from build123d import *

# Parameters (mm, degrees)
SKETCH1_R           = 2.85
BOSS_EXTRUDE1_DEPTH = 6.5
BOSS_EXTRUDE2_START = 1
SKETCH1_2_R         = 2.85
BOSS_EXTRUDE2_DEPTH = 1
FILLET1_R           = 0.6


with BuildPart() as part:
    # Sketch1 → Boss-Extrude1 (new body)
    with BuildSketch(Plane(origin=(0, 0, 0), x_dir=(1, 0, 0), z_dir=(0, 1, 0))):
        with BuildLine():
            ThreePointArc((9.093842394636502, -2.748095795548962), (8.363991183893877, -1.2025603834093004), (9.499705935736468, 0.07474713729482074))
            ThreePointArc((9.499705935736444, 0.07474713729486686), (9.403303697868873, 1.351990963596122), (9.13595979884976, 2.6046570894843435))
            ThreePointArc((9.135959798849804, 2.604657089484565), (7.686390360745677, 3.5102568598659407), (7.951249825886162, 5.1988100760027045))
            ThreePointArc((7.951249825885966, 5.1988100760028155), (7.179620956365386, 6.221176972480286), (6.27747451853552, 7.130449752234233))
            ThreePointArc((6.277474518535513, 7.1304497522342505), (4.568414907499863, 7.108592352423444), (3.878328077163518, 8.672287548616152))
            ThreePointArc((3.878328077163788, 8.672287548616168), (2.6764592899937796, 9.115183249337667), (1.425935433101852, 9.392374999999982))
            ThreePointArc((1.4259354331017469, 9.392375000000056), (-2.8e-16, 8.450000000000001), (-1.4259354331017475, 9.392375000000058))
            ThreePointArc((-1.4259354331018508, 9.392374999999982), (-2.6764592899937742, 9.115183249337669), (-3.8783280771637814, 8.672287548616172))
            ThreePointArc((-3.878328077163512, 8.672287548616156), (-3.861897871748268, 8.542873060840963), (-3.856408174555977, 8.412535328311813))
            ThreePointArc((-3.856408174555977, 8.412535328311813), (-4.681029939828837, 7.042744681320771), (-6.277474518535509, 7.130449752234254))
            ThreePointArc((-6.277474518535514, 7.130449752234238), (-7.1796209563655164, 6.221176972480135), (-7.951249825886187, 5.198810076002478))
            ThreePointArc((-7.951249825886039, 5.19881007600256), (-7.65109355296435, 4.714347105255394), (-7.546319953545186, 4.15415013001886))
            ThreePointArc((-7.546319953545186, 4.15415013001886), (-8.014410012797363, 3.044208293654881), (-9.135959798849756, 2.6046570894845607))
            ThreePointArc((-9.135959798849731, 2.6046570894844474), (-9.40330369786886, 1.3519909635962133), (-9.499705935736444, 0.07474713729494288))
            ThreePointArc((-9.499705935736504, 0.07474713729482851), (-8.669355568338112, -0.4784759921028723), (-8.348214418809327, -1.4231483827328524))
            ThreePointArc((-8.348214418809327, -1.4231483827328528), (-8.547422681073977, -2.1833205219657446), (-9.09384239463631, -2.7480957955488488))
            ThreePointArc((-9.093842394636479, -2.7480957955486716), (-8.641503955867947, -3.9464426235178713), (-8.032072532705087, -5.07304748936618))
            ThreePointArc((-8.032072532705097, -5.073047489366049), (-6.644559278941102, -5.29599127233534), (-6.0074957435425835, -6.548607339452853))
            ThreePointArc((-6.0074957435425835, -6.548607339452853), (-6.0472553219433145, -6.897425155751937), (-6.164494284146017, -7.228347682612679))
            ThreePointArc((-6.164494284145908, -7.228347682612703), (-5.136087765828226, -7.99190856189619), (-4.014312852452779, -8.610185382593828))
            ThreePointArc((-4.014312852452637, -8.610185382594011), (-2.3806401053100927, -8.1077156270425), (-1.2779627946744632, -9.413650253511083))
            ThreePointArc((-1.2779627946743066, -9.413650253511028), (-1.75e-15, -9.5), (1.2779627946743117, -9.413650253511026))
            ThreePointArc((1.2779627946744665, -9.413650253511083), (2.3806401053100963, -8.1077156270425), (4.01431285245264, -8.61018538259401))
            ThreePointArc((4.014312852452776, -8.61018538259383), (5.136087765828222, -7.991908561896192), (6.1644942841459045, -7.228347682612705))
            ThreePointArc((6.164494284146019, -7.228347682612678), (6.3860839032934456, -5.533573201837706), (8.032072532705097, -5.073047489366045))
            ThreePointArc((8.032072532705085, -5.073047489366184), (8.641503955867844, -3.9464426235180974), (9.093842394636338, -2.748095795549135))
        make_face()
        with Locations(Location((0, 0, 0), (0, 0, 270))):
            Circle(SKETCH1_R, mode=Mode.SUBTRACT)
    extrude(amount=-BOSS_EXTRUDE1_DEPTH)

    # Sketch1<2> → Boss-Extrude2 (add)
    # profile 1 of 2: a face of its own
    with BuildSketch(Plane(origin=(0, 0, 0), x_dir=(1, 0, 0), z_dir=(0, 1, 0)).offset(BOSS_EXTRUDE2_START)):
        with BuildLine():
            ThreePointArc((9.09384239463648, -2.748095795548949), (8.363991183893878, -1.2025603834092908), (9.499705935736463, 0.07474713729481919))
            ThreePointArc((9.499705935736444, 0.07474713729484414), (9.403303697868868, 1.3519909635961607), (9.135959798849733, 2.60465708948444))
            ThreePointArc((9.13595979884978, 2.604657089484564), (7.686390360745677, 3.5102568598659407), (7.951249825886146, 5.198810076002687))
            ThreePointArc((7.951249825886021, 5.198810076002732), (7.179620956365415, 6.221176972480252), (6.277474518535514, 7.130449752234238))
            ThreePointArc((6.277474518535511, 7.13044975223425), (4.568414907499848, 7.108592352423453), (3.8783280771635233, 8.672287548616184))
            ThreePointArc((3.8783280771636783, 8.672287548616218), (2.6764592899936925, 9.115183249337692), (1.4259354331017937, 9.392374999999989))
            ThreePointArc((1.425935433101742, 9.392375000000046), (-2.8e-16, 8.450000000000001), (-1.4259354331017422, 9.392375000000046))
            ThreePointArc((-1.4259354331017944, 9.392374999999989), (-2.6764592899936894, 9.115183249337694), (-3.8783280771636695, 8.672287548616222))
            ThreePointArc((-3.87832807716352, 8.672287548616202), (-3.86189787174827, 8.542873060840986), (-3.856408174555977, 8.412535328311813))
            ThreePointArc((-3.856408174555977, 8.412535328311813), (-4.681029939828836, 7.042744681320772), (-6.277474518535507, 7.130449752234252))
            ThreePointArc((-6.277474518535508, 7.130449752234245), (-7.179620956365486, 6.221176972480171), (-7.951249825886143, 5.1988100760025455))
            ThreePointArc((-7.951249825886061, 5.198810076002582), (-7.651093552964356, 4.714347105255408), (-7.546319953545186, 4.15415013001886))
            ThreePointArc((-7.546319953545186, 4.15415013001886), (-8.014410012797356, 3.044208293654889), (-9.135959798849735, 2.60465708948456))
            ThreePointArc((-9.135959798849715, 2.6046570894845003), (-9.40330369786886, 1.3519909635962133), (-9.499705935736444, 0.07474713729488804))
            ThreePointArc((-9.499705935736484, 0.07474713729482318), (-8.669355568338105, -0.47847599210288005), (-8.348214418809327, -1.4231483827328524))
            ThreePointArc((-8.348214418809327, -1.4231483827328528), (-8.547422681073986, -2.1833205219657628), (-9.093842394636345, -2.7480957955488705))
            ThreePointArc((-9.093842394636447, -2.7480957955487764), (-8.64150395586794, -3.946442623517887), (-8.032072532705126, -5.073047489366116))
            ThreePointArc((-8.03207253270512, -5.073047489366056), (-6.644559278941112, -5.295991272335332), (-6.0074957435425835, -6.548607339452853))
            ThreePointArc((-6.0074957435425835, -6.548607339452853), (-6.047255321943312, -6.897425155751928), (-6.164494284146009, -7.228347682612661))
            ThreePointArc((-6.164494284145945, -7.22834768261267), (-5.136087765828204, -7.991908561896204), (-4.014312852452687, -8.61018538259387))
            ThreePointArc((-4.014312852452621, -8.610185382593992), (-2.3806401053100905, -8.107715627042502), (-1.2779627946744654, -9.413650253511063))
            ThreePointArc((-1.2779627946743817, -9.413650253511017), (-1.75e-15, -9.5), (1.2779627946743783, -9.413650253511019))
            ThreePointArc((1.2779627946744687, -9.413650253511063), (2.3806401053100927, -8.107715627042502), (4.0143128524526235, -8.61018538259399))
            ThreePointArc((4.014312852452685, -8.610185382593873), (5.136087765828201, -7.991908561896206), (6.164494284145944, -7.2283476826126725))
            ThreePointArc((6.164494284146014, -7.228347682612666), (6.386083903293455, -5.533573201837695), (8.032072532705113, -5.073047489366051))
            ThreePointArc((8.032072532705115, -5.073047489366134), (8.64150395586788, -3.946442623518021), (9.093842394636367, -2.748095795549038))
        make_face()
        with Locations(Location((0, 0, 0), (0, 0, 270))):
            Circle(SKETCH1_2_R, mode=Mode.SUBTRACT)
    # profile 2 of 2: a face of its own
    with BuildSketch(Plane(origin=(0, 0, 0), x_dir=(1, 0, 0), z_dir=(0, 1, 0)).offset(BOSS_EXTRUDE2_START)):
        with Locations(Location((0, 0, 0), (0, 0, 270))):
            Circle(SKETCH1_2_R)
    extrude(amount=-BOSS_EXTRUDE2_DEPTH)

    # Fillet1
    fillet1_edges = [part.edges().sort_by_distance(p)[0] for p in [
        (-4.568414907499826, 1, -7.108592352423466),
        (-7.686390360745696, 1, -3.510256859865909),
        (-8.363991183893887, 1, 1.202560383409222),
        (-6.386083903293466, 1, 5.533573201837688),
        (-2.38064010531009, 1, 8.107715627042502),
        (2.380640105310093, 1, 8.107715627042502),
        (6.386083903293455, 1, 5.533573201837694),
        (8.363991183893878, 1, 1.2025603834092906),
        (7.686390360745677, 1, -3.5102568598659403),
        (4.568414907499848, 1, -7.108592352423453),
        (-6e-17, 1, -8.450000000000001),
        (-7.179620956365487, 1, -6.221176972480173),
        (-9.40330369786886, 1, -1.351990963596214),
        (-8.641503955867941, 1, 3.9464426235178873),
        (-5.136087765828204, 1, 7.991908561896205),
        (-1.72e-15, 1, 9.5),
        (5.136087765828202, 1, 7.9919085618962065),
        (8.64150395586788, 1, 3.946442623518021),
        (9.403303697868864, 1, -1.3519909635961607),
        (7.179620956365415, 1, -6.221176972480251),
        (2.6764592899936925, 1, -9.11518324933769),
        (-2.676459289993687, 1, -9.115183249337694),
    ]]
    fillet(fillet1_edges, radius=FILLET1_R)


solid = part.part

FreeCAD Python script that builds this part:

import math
import FreeCAD as App
import Part
import Sketcher
Q = App.Units.Quantity


def edges_at(feature, points):
    """Names of the edges that pass closest to the given points."""
    edges = feature.Shape.Edges
    near = lambda p: min(range(len(edges)), key=lambda i: edges[i].distToShape(Part.Vertex(*p))[0])
    return sorted({f"Edge{near(p) + 1}" for p in points})

doc = App.newDocument("Part")
body = doc.addObject("PartDesign::Body", "Body")

# Sketch on XZ plane
sketch1 = doc.addObject("Sketcher::SketchObject", "Sketch")
body.addObject(sketch1)
sketch1.AttachmentSupport = (doc.XZ_Plane, [""])
sketch1.MapMode = "FlatFace"
sketch1.addGeometry([
    Part.ArcOfCircle(Part.Circle(App.Vector(9.9, 1.4, 0), App.Vector(0, 0, 1), 1.6), math.radians(121), math.radians(255)),  # 0
    Part.ArcOfCircle(Part.Circle(App.Vector(0, 0, 0), App.Vector(0, 0, 1), 9.5), math.radians(-15.91), math.radians(-0.45)),  # 1
    Part.ArcOfCircle(Part.Circle(App.Vector(9.1, -4.2, 0), App.Vector(0, 0, 1), 1.6), math.radians(89), math.radians(222)),  # 2
    Part.ArcOfCircle(Part.Circle(App.Vector(0, 0, 0), App.Vector(0, 0, 1), 9.5), math.radians(-48.64), math.radians(-33.18)),  # 3
    Part.ArcOfCircle(Part.Circle(App.Vector(5.4, -8.4, 0), App.Vector(0, 0, 1), 1.6), math.radians(56), math.radians(190)),  # 4
    Part.ArcOfCircle(Part.Circle(App.Vector(0, 0, 0), App.Vector(0, 0, 1), 9.5), math.radians(-81.37), math.radians(-65.91)),  # 5
    Part.ArcOfCircle(Part.Circle(App.Vector(0, -10, 0), App.Vector(0, 0, 1), 1.6), math.radians(23), math.radians(157)),  # 6
    Part.ArcOfCircle(Part.Circle(App.Vector(0, 0, 0), App.Vector(0, 0, 1), 9.5), math.radians(-114.09), math.radians(-98.63)),  # 7
    Part.ArcOfCircle(Part.Circle(App.Vector(-5.4, -8.4, 0), App.Vector(0, 0, 1), 1.6), math.radians(-10), math.radians(124)),  # 8
    Part.ArcOfCircle(Part.Circle(App.Vector(0, 0, 0), App.Vector(0, 0, 1), 9.5), math.radians(-146.82), math.radians(-131.36)),  # 9
    Part.ArcOfCircle(Part.Circle(App.Vector(-9.1, -4.2, 0), App.Vector(0, 0, 1), 1.6), math.radians(-42), math.radians(91)),  # 10
    Part.ArcOfCircle(Part.Circle(App.Vector(0, 0, 0), App.Vector(0, 0, 1), 9.5), math.radians(-179.55), math.radians(-164.09)),  # 11
    Part.ArcOfCircle(Part.Circle(App.Vector(-9.9, 1.4, 0), App.Vector(0, 0, 1), 1.6), math.radians(-75), math.radians(59)),  # 12
    Part.ArcOfCircle(Part.Circle(App.Vector(0, 0, 0), App.Vector(0, 0, 1), 9.5), math.radians(147.72), math.radians(163.19)),  # 13
    Part.ArcOfCircle(Part.Circle(App.Vector(-7.6, 6.5, 0), App.Vector(0, 0, 1), 1.6), math.radians(-108), math.radians(26)),  # 14
    Part.ArcOfCircle(Part.Circle(App.Vector(0, 0, 0), App.Vector(0, 0, 1), 9.5), math.radians(115), math.radians(130.46)),  # 15
    Part.ArcOfCircle(Part.Circle(App.Vector(-2.8, 9.6, 0), App.Vector(0, 0, 1), 1.6), math.radians(-141), math.radians(-7)),  # 16
    Part.ArcOfCircle(Part.Circle(App.Vector(0, 0, 0), App.Vector(0, 0, 1), 9.5), math.radians(82.27), math.radians(97.73)),  # 17
    Part.ArcOfCircle(Part.Circle(App.Vector(2.8, 9.6, 0), App.Vector(0, 0, 1), 1.6), math.radians(-173), math.radians(-39)),  # 18
    Part.ArcOfCircle(Part.Circle(App.Vector(0, 0, 0), App.Vector(0, 0, 1), 9.5), math.radians(49.54), math.radians(65)),  # 19
    Part.ArcOfCircle(Part.Circle(App.Vector(7.6, 6.5, 0), App.Vector(0, 0, 1), 1.6), math.radians(154), math.radians(288)),  # 20
    Part.ArcOfCircle(Part.Circle(App.Vector(0, 0, 0), App.Vector(0, 0, 1), 9.5), math.radians(16.81), math.radians(32.28)),  # 21
    Part.Circle(App.Vector(0, 0, 0), App.Vector(0, 0, 1), 2.9),  # 22
], False)
sketch1.addConstraint([
    Sketcher.Constraint("Coincident", 0, 2, 1, 2),
    Sketcher.Constraint("Coincident", 1, 1, 2, 1),
    Sketcher.Constraint("Coincident", 2, 2, 3, 2),
    Sketcher.Constraint("Coincident", 3, 1, 4, 1),
    Sketcher.Constraint("Coincident", 4, 2, 5, 2),
    Sketcher.Constraint("Coincident", 5, 1, 6, 1),
    Sketcher.Constraint("Coincident", 6, 2, 7, 2),
    Sketcher.Constraint("Coincident", 7, 1, 8, 1),
    Sketcher.Constraint("Coincident", 8, 2, 9, 2),
    Sketcher.Constraint("Coincident", 9, 1, 10, 1),
    Sketcher.Constraint("Coincident", 10, 2, 11, 2),
    Sketcher.Constraint("Coincident", 11, 1, 12, 1),
    Sketcher.Constraint("Coincident", 12, 2, 13, 2),
    Sketcher.Constraint("Coincident", 13, 1, 14, 1),
    Sketcher.Constraint("Coincident", 14, 2, 15, 2),
    Sketcher.Constraint("Coincident", 15, 1, 16, 1),
    Sketcher.Constraint("Coincident", 16, 2, 17, 2),
    Sketcher.Constraint("Coincident", 17, 1, 18, 1),
    Sketcher.Constraint("Coincident", 18, 2, 19, 2),
    Sketcher.Constraint("Coincident", 19, 1, 20, 1),
    Sketcher.Constraint("Coincident", 20, 2, 21, 2),
    Sketcher.Constraint("Coincident", 21, 1, 0, 1),
    Sketcher.Constraint("Coincident", 1, 3, -1, 1),
    Sketcher.Constraint("Coincident", 3, 3, -1, 1),
    Sketcher.Constraint("Coincident", 5, 3, -1, 1),
    Sketcher.Constraint("Coincident", 7, 3, -1, 1),
    Sketcher.Constraint("Coincident", 9, 3, -1, 1),
    Sketcher.Constraint("Coincident", 11, 3, -1, 1),
    Sketcher.Constraint("Coincident", 13, 3, -1, 1),
    Sketcher.Constraint("Coincident", 15, 3, -1, 1),
    Sketcher.Constraint("Coincident", 17, 3, -1, 1),
    Sketcher.Constraint("Coincident", 19, 3, -1, 1),
    Sketcher.Constraint("Coincident", 21, 3, -1, 1),
    Sketcher.Constraint("Coincident", 22, 3, -1, 1),
    Sketcher.Constraint("Equal", 0, 2),
    Sketcher.Constraint("Equal", 1, 3),
    Sketcher.Constraint("Equal", 2, 4),
    Sketcher.Constraint("Equal", 3, 5),
    Sketcher.Constraint("Equal", 4, 6),
    Sketcher.Constraint("Equal", 5, 7),
    Sketcher.Constraint("Equal", 6, 8),
    Sketcher.Constraint("Equal", 7, 9),
    Sketcher.Constraint("Equal", 8, 10),
    Sketcher.Constraint("Equal", 9, 11),
    Sketcher.Constraint("Equal", 10, 12),
    Sketcher.Constraint("Equal", 11, 13),
    Sketcher.Constraint("Equal", 12, 14),
    Sketcher.Constraint("Equal", 13, 15),
    Sketcher.Constraint("Equal", 14, 16),
    Sketcher.Constraint("Equal", 15, 17),
    Sketcher.Constraint("Equal", 16, 18),
    Sketcher.Constraint("Equal", 17, 19),
    Sketcher.Constraint("Equal", 18, 20),
    Sketcher.Constraint("Equal", 19, 21),
    Sketcher.Constraint("Symmetric", 4, 3, 8, 3, -2),
    Sketcher.Constraint("Symmetric", 2, 3, 10, 3, -2),
    Sketcher.Constraint("Symmetric", 0, 3, 12, 3, -2),
    Sketcher.Constraint("Symmetric", 16, 3, 18, 3, -2),
    Sketcher.Constraint("Symmetric", 14, 3, 20, 3, -2),
    Sketcher.Constraint("PointOnObject", 6, 3, -2),
    Sketcher.Constraint("Diameter", 22, Q("5.7 mm")),
    Sketcher.Constraint("Radius", 1, Q("9.5 mm")),
    Sketcher.Constraint("Radius", 0, Q("1.55 mm")),
    Sketcher.Constraint("DistanceY", 6, 3, -1, 1, Q("10 mm")),
    Sketcher.Constraint("DistanceX", 14, 3, 14, 2, Q("1.393001 mm")),
    Sketcher.Constraint("DistanceY", 2, 3, 0, 3, Q("5.577299 mm")),
    Sketcher.Constraint("DistanceY", 3, 1, 2, 3, Q("2.9763 mm")),
    Sketcher.Constraint("DistanceY", 12, 3, 13, 1, Q("3.649899 mm")),
    Sketcher.Constraint("DistanceY", 13, 1, 14, 2, Q("2.1553 mm")),
    Sketcher.Constraint("DistanceX", -1, 1, 2, 3, Q("9.09632 mm")),
    Sketcher.Constraint("DistanceX", -1, 1, 4, 3, Q("5.406408 mm")),
    Sketcher.Constraint("DistanceY", -1, 1, 16, 3, Q("9.59493 mm")),
    Sketcher.Constraint("DistanceY", -1, 1, 16, 2, Q("9.41365 mm")),
    Sketcher.Constraint("DistanceX", 12, 3, 14, 3, Q("2.340719 mm")),
])
pad1 = doc.addObject("PartDesign::Pad", "Pad")
body.addObject(pad1)
pad1.Profile = sketch1
pad1.Length = 6.5

# Sketch on XZ plane
sketch2 = doc.addObject("Sketcher::SketchObject", "Sketch001")
body.addObject(sketch2)
sketch2.AttachmentSupport = (doc.XZ_Plane, [""])
sketch2.MapMode = "FlatFace"
sketch2.AttachmentOffset = App.Placement(App.Vector(0, 0, -1), App.Rotation())
sketch2.addGeometry([
    Part.ArcOfCircle(Part.Circle(App.Vector(9.9, 1.4, 0), App.Vector(0, 0, 1), 1.6), math.radians(121), math.radians(255)),  # 0
    Part.ArcOfCircle(Part.Circle(App.Vector(0, 0, 0), App.Vector(0, 0, 1), 9.5), math.radians(-15.91), math.radians(-0.45)),  # 1
    Part.ArcOfCircle(Part.Circle(App.Vector(9.1, -4.2, 0), App.Vector(0, 0, 1), 1.6), math.radians(89), math.radians(222)),  # 2
    Part.ArcOfCircle(Part.Circle(App.Vector(0, 0, 0), App.Vector(0, 0, 1), 9.5), math.radians(-48.64), math.radians(-33.18)),  # 3
    Part.ArcOfCircle(Part.Circle(App.Vector(5.4, -8.4, 0), App.Vector(0, 0, 1), 1.6), math.radians(56), math.radians(190)),  # 4
    Part.ArcOfCircle(Part.Circle(App.Vector(0, 0, 0), App.Vector(0, 0, 1), 9.5), math.radians(-81.37), math.radians(-65.91)),  # 5
    Part.ArcOfCircle(Part.Circle(App.Vector(0, -10, 0), App.Vector(0, 0, 1), 1.6), math.radians(23), math.radians(157)),  # 6
    Part.ArcOfCircle(Part.Circle(App.Vector(0, 0, 0), App.Vector(0, 0, 1), 9.5), math.radians(-114.09), math.radians(-98.63)),  # 7
    Part.ArcOfCircle(Part.Circle(App.Vector(-5.4, -8.4, 0), App.Vector(0, 0, 1), 1.6), math.radians(-10), math.radians(124)),  # 8
    Part.ArcOfCircle(Part.Circle(App.Vector(0, 0, 0), App.Vector(0, 0, 1), 9.5), math.radians(-146.82), math.radians(-131.36)),  # 9
    Part.ArcOfCircle(Part.Circle(App.Vector(-9.1, -4.2, 0), App.Vector(0, 0, 1), 1.6), math.radians(-42), math.radians(91)),  # 10
    Part.ArcOfCircle(Part.Circle(App.Vector(0, 0, 0), App.Vector(0, 0, 1), 9.5), math.radians(-179.55), math.radians(-164.09)),  # 11
    Part.ArcOfCircle(Part.Circle(App.Vector(-9.9, 1.4, 0), App.Vector(0, 0, 1), 1.6), math.radians(-75), math.radians(59)),  # 12
    Part.ArcOfCircle(Part.Circle(App.Vector(0, 0, 0), App.Vector(0, 0, 1), 9.5), math.radians(147.72), math.radians(163.19)),  # 13
    Part.ArcOfCircle(Part.Circle(App.Vector(-7.6, 6.5, 0), App.Vector(0, 0, 1), 1.6), math.radians(-108), math.radians(26)),  # 14
    Part.ArcOfCircle(Part.Circle(App.Vector(0, 0, 0), App.Vector(0, 0, 1), 9.5), math.radians(115), math.radians(130.46)),  # 15
    Part.ArcOfCircle(Part.Circle(App.Vector(-2.8, 9.6, 0), App.Vector(0, 0, 1), 1.6), math.radians(-141), math.radians(-7)),  # 16
    Part.ArcOfCircle(Part.Circle(App.Vector(0, 0, 0), App.Vector(0, 0, 1), 9.5), math.radians(82.27), math.radians(97.73)),  # 17
    Part.ArcOfCircle(Part.Circle(App.Vector(2.8, 9.6, 0), App.Vector(0, 0, 1), 1.6), math.radians(-173), math.radians(-39)),  # 18
    Part.ArcOfCircle(Part.Circle(App.Vector(0, 0, 0), App.Vector(0, 0, 1), 9.5), math.radians(49.54), math.radians(65)),  # 19
    Part.ArcOfCircle(Part.Circle(App.Vector(7.6, 6.5, 0), App.Vector(0, 0, 1), 1.6), math.radians(154), math.radians(288)),  # 20
    Part.ArcOfCircle(Part.Circle(App.Vector(0, 0, 0), App.Vector(0, 0, 1), 9.5), math.radians(16.81), math.radians(32.28)),  # 21
], False)
sketch2.addConstraint([
    Sketcher.Constraint("Coincident", 0, 2, 1, 2),
    Sketcher.Constraint("Coincident", 1, 1, 2, 1),
    Sketcher.Constraint("Coincident", 2, 2, 3, 2),
    Sketcher.Constraint("Coincident", 3, 1, 4, 1),
    Sketcher.Constraint("Coincident", 4, 2, 5, 2),
    Sketcher.Constraint("Coincident", 5, 1, 6, 1),
    Sketcher.Constraint("Coincident", 6, 2, 7, 2),
    Sketcher.Constraint("Coincident", 7, 1, 8, 1),
    Sketcher.Constraint("Coincident", 8, 2, 9, 2),
    Sketcher.Constraint("Coincident", 9, 1, 10, 1),
    Sketcher.Constraint("Coincident", 10, 2, 11, 2),
    Sketcher.Constraint("Coincident", 11, 1, 12, 1),
    Sketcher.Constraint("Coincident", 12, 2, 13, 2),
    Sketcher.Constraint("Coincident", 13, 1, 14, 1),
    Sketcher.Constraint("Coincident", 14, 2, 15, 2),
    Sketcher.Constraint("Coincident", 15, 1, 16, 1),
    Sketcher.Constraint("Coincident", 16, 2, 17, 2),
    Sketcher.Constraint("Coincident", 17, 1, 18, 1),
    Sketcher.Constraint("Coincident", 18, 2, 19, 2),
    Sketcher.Constraint("Coincident", 19, 1, 20, 1),
    Sketcher.Constraint("Coincident", 20, 2, 21, 2),
    Sketcher.Constraint("Coincident", 21, 1, 0, 1),
    Sketcher.Constraint("Coincident", 1, 3, -1, 1),
    Sketcher.Constraint("Coincident", 3, 3, -1, 1),
    Sketcher.Constraint("Coincident", 5, 3, -1, 1),
    Sketcher.Constraint("Coincident", 7, 3, -1, 1),
    Sketcher.Constraint("Coincident", 9, 3, -1, 1),
    Sketcher.Constraint("Coincident", 11, 3, -1, 1),
    Sketcher.Constraint("Coincident", 13, 3, -1, 1),
    Sketcher.Constraint("Coincident", 15, 3, -1, 1),
    Sketcher.Constraint("Coincident", 17, 3, -1, 1),
    Sketcher.Constraint("Coincident", 19, 3, -1, 1),
    Sketcher.Constraint("Coincident", 21, 3, -1, 1),
    Sketcher.Constraint("Equal", 0, 2),
    Sketcher.Constraint("Equal", 1, 3),
    Sketcher.Constraint("Equal", 2, 4),
    Sketcher.Constraint("Equal", 3, 5),
    Sketcher.Constraint("Equal", 4, 6),
    Sketcher.Constraint("Equal", 5, 7),
    Sketcher.Constraint("Equal", 6, 8),
    Sketcher.Constraint("Equal", 7, 9),
    Sketcher.Constraint("Equal", 8, 10),
    Sketcher.Constraint("Equal", 9, 11),
    Sketcher.Constraint("Equal", 10, 12),
    Sketcher.Constraint("Equal", 11, 13),
    Sketcher.Constraint("Equal", 12, 14),
    Sketcher.Constraint("Equal", 13, 15),
    Sketcher.Constraint("Equal", 14, 16),
    Sketcher.Constraint("Equal", 15, 17),
    Sketcher.Constraint("Equal", 16, 18),
    Sketcher.Constraint("Equal", 17, 19),
    Sketcher.Constraint("Equal", 18, 20),
    Sketcher.Constraint("Equal", 19, 21),
    Sketcher.Constraint("Symmetric", 4, 3, 8, 3, -2),
    Sketcher.Constraint("Symmetric", 2, 3, 10, 3, -2),
    Sketcher.Constraint("Symmetric", 0, 3, 12, 3, -2),
    Sketcher.Constraint("Symmetric", 16, 3, 18, 3, -2),
    Sketcher.Constraint("Symmetric", 14, 3, 20, 3, -2),
    Sketcher.Constraint("PointOnObject", 6, 3, -2),
    Sketcher.Constraint("Radius", 1, Q("9.5 mm")),
    Sketcher.Constraint("Radius", 0, Q("1.55 mm")),
    Sketcher.Constraint("DistanceY", 6, 3, -1, 1, Q("10 mm")),
    Sketcher.Constraint("DistanceX", 14, 3, 14, 2, Q("1.393001 mm")),
    Sketcher.Constraint("DistanceY", 2, 3, 0, 3, Q("5.577299 mm")),
    Sketcher.Constraint("DistanceY", 3, 1, 2, 3, Q("2.9763 mm")),
    Sketcher.Constraint("DistanceY", 12, 3, 13, 1, Q("3.649899 mm")),
    Sketcher.Constraint("DistanceY", 13, 1, 14, 2, Q("2.1553 mm")),
    Sketcher.Constraint("DistanceX", -1, 1, 2, 3, Q("9.09632 mm")),
    Sketcher.Constraint("DistanceX", -1, 1, 4, 3, Q("5.406408 mm")),
    Sketcher.Constraint("DistanceY", -1, 1, 16, 3, Q("9.59493 mm")),
    Sketcher.Constraint("DistanceY", -1, 1, 16, 2, Q("9.41365 mm")),
    Sketcher.Constraint("DistanceX", 12, 3, 14, 3, Q("2.340719 mm")),
])
pad2 = doc.addObject("PartDesign::Pad", "Pad001")
body.addObject(pad2)
pad2.Profile = sketch2
pad2.Length = 1
doc.recompute()

fillet = doc.addObject("PartDesign::Fillet", "Fillet")
body.addObject(fillet)
fillet.Base = (pad2, edges_at(pad2, [
    (-4.568, 1, -7.109),
    (-7.686, 1, -3.51),
    (-8.364, 1, 1.203),
    (-6.386, 1, 5.534),
    (-2.381, 1, 8.108),
    (2.381, 1, 8.108),
    (6.386, 1, 5.534),
    (8.364, 1, 1.203),
    (7.686, 1, -3.51),
    (4.568, 1, -7.109),
    (0, 1, -8.45),
    (-7.18, 1, -6.221),
    (-9.403, 1, -1.352),
    (-8.642, 1, 3.946),
    (-5.136, 1, 7.992),
    (0, 1, 9.5),
    (5.136, 1, 7.992),
    (8.642, 1, 3.946),
    (9.403, 1, -1.352),
    (7.18, 1, -6.221),
    (2.676, 1, -9.115),
    (-2.676, 1, -9.115),
]))
fillet.Radius = 0.6

doc.recompute()
